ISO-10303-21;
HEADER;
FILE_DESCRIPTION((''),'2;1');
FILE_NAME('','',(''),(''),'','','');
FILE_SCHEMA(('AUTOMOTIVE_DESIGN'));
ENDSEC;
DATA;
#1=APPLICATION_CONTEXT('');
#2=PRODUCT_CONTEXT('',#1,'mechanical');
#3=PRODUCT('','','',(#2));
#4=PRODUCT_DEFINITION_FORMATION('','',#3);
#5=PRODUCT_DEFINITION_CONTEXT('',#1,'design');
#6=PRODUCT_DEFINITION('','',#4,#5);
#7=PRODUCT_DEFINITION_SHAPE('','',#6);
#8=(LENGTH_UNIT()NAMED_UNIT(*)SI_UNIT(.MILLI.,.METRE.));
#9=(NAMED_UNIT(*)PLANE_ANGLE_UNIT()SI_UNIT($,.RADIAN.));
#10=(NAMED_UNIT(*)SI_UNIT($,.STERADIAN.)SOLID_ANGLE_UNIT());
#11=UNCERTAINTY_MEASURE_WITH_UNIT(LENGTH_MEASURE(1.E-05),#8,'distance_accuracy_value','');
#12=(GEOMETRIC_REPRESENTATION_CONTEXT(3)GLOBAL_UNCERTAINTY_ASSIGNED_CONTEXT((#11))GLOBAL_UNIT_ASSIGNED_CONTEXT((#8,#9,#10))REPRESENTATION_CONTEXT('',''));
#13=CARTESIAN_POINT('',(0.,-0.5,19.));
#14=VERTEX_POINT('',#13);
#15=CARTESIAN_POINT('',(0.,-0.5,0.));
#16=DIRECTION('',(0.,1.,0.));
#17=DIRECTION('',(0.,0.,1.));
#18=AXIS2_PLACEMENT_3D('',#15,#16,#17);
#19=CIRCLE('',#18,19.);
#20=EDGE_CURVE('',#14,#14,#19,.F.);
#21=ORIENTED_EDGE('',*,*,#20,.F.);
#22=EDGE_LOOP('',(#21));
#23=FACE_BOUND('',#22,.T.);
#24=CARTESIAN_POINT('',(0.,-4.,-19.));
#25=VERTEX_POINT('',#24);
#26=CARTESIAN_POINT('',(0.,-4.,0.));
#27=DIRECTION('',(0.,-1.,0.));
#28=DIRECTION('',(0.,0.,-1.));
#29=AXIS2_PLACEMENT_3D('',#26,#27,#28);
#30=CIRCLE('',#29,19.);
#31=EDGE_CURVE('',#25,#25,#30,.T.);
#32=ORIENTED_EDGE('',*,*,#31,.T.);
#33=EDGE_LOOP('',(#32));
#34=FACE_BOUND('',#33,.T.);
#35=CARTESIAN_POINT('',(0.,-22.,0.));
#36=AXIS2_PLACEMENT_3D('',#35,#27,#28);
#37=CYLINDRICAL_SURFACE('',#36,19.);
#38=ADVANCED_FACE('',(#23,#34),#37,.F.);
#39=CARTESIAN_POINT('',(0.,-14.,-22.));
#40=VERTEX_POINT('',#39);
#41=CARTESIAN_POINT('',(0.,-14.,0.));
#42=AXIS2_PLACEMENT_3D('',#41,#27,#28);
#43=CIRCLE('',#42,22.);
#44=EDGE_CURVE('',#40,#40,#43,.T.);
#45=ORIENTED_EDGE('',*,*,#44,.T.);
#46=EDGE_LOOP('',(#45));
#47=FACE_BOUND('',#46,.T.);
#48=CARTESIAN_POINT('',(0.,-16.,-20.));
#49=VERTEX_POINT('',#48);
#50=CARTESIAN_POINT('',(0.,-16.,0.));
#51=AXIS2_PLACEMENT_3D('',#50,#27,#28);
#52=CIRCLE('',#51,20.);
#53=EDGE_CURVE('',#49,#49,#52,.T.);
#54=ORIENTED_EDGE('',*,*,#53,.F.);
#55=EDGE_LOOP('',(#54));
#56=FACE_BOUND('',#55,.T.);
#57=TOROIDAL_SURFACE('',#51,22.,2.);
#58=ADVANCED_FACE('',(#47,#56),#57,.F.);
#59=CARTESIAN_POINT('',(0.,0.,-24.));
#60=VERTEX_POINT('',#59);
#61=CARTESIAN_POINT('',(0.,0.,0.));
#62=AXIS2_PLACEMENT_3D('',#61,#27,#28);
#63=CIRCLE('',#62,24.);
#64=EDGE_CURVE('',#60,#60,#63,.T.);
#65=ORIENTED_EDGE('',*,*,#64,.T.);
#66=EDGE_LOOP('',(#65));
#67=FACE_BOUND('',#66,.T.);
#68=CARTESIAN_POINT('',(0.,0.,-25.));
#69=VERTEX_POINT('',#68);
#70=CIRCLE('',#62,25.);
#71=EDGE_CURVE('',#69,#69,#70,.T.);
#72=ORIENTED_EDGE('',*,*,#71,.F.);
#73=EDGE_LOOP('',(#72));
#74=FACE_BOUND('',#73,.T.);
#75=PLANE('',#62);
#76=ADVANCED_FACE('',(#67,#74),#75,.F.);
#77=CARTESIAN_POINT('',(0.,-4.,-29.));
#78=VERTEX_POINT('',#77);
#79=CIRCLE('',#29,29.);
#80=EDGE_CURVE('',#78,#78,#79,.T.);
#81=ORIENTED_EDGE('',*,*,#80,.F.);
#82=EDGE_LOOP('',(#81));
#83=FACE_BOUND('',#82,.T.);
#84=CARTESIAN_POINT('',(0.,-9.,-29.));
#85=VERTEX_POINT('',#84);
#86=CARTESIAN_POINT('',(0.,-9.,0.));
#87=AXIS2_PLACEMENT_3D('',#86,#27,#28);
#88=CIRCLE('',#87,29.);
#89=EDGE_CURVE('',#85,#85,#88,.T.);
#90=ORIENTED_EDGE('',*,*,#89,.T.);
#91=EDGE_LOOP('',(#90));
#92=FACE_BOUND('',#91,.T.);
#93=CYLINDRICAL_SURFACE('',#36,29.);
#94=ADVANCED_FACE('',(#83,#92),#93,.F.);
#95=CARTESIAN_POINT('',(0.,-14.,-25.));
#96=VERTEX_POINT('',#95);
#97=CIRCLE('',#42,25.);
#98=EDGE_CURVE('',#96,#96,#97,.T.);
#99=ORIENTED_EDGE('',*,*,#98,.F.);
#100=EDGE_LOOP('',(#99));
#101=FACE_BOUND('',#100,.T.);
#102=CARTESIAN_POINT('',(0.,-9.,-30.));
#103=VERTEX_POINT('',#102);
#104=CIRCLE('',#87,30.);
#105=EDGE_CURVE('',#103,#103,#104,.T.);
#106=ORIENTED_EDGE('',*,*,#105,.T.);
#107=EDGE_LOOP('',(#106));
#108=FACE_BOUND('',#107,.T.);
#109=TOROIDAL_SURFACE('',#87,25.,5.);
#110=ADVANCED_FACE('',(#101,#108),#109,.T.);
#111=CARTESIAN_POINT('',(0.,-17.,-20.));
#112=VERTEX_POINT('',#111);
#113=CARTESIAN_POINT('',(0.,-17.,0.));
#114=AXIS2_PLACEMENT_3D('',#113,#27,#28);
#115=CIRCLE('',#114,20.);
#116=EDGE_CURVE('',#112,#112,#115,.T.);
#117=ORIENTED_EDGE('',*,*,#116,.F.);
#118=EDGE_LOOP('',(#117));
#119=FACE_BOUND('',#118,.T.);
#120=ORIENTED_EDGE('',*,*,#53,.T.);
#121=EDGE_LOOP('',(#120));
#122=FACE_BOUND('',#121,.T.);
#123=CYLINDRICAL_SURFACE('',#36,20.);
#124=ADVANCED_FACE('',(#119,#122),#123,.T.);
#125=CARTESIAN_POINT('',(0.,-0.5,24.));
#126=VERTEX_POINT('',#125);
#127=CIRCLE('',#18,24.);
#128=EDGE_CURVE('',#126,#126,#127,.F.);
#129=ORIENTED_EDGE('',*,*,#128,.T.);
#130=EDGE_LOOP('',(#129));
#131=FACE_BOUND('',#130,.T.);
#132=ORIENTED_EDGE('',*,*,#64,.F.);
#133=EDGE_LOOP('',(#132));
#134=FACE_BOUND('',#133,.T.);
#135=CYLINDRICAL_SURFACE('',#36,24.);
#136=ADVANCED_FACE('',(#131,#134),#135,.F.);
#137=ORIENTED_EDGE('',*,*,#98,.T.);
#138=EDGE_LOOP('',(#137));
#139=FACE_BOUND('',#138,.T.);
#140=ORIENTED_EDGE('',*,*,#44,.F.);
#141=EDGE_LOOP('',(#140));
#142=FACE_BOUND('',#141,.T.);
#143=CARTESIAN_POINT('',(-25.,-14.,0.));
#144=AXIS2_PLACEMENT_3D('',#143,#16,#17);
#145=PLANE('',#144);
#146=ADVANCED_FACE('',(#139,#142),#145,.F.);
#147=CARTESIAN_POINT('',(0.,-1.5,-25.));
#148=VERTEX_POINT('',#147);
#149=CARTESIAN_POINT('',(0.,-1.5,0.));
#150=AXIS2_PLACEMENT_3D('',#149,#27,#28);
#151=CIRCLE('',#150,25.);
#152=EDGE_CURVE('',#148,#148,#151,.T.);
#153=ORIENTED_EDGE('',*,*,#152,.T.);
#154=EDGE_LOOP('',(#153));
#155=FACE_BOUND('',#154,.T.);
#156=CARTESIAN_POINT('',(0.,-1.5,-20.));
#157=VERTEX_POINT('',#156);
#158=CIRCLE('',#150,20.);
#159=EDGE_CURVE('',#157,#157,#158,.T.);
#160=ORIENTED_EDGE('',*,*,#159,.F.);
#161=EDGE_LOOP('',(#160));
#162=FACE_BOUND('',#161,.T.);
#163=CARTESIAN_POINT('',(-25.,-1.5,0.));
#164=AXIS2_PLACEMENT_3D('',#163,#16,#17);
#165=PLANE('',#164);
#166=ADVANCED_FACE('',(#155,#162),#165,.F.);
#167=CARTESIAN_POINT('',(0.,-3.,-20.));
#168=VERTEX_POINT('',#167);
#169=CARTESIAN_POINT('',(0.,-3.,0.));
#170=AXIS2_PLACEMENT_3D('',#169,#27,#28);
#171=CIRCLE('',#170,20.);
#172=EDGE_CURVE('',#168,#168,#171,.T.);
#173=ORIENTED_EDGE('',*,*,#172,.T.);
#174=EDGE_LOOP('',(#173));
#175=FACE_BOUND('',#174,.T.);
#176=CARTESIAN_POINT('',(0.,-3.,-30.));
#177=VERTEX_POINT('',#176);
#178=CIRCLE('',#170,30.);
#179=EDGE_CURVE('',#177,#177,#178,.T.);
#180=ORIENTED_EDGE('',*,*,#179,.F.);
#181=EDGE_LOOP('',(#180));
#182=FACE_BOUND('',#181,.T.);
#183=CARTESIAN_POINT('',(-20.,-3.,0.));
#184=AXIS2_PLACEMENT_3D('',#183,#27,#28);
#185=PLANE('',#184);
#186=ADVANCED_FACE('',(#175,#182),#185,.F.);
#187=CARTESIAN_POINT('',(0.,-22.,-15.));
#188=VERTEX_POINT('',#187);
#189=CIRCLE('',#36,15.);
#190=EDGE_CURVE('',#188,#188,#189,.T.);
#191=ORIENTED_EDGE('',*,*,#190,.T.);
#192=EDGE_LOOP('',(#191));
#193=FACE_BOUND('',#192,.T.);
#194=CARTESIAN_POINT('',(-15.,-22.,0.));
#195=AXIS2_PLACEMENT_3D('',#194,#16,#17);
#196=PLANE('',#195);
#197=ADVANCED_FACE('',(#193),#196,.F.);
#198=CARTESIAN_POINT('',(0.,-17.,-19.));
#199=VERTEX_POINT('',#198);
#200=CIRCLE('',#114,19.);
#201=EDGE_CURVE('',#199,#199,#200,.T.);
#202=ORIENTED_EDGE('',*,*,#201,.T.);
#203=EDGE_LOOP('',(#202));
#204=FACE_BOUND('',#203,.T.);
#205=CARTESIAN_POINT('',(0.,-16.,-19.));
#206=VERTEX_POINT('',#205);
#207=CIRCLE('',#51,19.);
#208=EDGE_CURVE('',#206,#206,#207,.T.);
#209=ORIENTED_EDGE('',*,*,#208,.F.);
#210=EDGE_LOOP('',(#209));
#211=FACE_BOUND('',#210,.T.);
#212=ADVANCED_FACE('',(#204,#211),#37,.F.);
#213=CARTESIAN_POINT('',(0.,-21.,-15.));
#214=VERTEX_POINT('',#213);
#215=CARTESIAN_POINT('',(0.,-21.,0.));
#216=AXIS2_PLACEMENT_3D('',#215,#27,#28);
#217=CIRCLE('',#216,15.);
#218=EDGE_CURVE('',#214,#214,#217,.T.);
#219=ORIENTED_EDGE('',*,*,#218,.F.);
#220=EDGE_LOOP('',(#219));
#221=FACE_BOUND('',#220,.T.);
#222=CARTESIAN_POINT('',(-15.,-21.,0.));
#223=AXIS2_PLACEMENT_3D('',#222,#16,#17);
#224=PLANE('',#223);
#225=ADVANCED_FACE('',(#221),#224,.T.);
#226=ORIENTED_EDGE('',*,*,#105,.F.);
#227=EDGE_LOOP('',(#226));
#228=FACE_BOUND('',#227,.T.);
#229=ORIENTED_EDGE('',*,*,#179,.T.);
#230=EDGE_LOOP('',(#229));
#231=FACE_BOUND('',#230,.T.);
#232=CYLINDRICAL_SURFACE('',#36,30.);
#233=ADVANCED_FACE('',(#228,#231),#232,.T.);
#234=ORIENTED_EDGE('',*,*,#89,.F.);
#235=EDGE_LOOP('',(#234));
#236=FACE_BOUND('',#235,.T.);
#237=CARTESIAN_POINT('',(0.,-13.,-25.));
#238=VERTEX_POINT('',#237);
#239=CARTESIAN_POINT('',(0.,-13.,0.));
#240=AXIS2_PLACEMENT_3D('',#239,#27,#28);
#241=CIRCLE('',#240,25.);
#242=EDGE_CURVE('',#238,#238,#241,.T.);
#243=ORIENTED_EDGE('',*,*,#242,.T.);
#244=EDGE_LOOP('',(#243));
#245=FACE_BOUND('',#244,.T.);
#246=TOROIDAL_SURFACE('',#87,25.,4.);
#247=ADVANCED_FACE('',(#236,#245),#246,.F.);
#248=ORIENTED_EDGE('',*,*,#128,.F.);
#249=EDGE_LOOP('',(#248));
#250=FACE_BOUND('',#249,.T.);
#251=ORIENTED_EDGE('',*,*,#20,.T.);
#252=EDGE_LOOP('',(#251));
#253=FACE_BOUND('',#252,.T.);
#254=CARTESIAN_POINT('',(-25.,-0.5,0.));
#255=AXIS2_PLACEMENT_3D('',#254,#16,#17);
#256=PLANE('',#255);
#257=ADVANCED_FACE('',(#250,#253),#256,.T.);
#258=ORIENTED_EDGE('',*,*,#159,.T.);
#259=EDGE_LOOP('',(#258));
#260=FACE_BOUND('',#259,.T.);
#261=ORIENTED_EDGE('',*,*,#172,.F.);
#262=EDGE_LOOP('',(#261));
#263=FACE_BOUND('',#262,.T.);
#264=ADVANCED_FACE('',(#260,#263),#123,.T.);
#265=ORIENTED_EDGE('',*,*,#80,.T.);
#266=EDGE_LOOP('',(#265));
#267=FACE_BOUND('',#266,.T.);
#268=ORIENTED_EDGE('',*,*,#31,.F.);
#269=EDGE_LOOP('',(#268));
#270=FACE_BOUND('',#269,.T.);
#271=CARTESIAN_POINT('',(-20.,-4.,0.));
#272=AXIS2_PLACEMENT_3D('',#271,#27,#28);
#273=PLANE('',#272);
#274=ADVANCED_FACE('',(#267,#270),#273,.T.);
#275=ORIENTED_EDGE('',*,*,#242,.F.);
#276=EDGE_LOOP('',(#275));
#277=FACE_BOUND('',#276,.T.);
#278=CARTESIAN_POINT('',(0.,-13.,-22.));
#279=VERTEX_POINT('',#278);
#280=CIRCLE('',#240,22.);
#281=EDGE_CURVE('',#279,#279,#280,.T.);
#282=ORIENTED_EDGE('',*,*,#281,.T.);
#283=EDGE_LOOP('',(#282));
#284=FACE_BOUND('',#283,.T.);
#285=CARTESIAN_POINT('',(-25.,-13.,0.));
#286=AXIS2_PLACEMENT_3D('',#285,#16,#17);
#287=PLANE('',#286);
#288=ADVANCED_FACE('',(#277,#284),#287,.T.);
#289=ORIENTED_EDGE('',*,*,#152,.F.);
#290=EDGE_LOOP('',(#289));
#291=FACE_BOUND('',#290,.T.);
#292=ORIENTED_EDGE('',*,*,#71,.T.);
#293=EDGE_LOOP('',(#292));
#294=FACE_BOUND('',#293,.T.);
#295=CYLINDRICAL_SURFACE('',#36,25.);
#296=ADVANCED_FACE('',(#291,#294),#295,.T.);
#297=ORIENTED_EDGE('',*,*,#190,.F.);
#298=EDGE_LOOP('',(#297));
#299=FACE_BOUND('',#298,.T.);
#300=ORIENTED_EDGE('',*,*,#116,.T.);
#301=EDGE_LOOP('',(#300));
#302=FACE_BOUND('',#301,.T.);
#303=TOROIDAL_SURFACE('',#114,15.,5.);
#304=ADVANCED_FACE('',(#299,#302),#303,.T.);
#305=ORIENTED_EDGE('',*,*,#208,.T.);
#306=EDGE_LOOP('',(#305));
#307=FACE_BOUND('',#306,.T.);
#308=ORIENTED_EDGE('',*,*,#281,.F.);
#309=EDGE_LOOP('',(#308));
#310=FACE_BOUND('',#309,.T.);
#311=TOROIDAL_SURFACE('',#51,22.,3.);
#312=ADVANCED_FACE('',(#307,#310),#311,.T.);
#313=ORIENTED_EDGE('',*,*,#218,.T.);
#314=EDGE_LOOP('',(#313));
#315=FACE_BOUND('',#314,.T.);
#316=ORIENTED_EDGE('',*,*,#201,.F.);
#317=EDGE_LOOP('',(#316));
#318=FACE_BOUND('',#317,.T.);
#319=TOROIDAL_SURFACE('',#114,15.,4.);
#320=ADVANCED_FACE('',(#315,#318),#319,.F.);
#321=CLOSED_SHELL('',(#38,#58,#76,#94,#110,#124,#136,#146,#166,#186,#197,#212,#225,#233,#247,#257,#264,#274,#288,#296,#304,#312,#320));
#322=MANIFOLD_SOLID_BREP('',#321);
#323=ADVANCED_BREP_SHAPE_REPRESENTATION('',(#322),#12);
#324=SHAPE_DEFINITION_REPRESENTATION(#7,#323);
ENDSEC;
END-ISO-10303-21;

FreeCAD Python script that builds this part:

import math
import FreeCAD as App
import Part
import Sketcher
Q = App.Units.Quantity


def faces_at(feature, points):
    """Names of the faces that lie closest to the given points."""
    faces = feature.Shape.Faces
    near = lambda p: min(range(len(faces)), key=lambda i: faces[i].distToShape(Part.Vertex(*p))[0])
    return sorted({f"Face{near(p) + 1}" for p in points})

doc = App.newDocument("Part")
body = doc.addObject("PartDesign::Body", "Body")

# Sketch on XY plane
sketch1 = body.newObject("Sketcher::SketchObject", "Sketch")
sketch1.AttachmentSupport = (doc.getObject("XY_Plane"), [""])
sketch1.MapMode = "FlatFace"
sketch1.addGeometry([
    Part.LineSegment(App.Vector(0, 0, 0), App.Vector(-25, 0, 0)),  # 0
    Part.LineSegment(App.Vector(-25, 0, 0), App.Vector(-25, -1.5, 0)),  # 1
    Part.LineSegment(App.Vector(-25, -1.5, 0), App.Vector(-20, -1.5, 0)),  # 2
    Part.LineSegment(App.Vector(-20, -1.5, 0), App.Vector(-20, -3, 0)),  # 3
    Part.LineSegment(App.Vector(-20, -3, 0), App.Vector(-30, -3, 0)),  # 4
    Part.LineSegment(App.Vector(-30, -3, 0), App.Vector(-30, -9, 0)),  # 5
    Part.ArcOfCircle(Part.Circle(App.Vector(-25, -9, 0), App.Vector(0, 0, 1), 5), math.radians(180), math.radians(270)),  # 6
    Part.LineSegment(App.Vector(-25, -14, 0), App.Vector(-22, -14, 0)),  # 7
    Part.ArcOfCircle(Part.Circle(App.Vector(-22, -16, 0), App.Vector(0, 0, 1), 2), math.radians(0), math.radians(90)),  # 8
    Part.LineSegment(App.Vector(-20, -16, 0), App.Vector(-20, -17, 0)),  # 9
    Part.ArcOfCircle(Part.Circle(App.Vector(-15, -17, 0), App.Vector(0, 0, 1), 5), math.radians(180), math.radians(270)),  # 10
    Part.LineSegment(App.Vector(-15, -22, 0), App.Vector(0, -22, 0)),  # 11
    Part.LineSegment(App.Vector(0, -22, 0), App.Vector(0, 0, 0)),  # 12
], False)
sketch1.addConstraint([
    Sketcher.Constraint("Coincident", 0, 2, 1, 1),
    Sketcher.Constraint("Coincident", 1, 2, 2, 1),
    Sketcher.Constraint("Coincident", 2, 2, 3, 1),
    Sketcher.Constraint("Coincident", 3, 2, 4, 1),
    Sketcher.Constraint("Coincident", 4, 2, 5, 1),
    Sketcher.Constraint("Tangent", 5, 2, 6, 1),
    Sketcher.Constraint("Tangent", 6, 2, 7, 1),
    Sketcher.Constraint("Tangent", 7, 2, 8, 2),
    Sketcher.Constraint("Tangent", 8, 1, 9, 1),
    Sketcher.Constraint("Tangent", 9, 2, 10, 1),
    Sketcher.Constraint("Tangent", 10, 2, 11, 1),
    Sketcher.Constraint("Coincident", 11, 2, 12, 1),
    Sketcher.Constraint("Coincident", 12, 2, 0, 1),
    Sketcher.Constraint("Horizontal", 0),
    Sketcher.Constraint("Vertical", 1),
    Sketcher.Constraint("Horizontal", 2),
    Sketcher.Constraint("Vertical", 3),
    Sketcher.Constraint("Horizontal", 4),
    Sketcher.Constraint("Vertical", 5),
    Sketcher.Constraint("Horizontal", 7),
    Sketcher.Constraint("Vertical", 9),
    Sketcher.Constraint("Horizontal", 11),
    Sketcher.Constraint("Vertical", 12),
    Sketcher.Constraint("Coincident", 12, 2, -1, 1),
    Sketcher.Constraint("Equal", 6, 10),
    Sketcher.Constraint("Vertical", 6, 3, 0, 2),
    Sketcher.Constraint("Vertical", 3, 2, 8, 1),
    Sketcher.Constraint("Equal", 1, 3),
    Sketcher.Constraint("Radius", 6, Q("5 mm")),
    Sketcher.Constraint("Radius", 8, Q("2 mm")),
    Sketcher.Constraint("DistanceX", 0, 2, 0, 1, Q("25 mm")),
    Sketcher.Constraint("DistanceX", 2, 1, 2, 2, Q("5 mm")),
    Sketcher.Constraint("DistanceY", 5, 2, 5, 1, Q("6 mm")),
    Sketcher.Constraint("DistanceY", 9, 2, 9, 1, Q("1 mm")),
    Sketcher.Constraint("DistanceY", 12, 1, 12, 2, Q("22 mm")),
])
revolution = body.newObject("PartDesign::Revolution", "Revolution")
revolution.Profile = sketch1
revolution.ReferenceAxis = (sketch1, ["V_Axis"])
revolution.Angle = 360
doc.recompute()

thickness = body.newObject("PartDesign::Thickness", "Thickness")
thickness.Base = (revolution, faces_at(revolution, [(0, 0, 0)]))
thickness.Value = 1
thickness.Reversed = True
thickness.Join = "Intersection"

doc.recompute()
